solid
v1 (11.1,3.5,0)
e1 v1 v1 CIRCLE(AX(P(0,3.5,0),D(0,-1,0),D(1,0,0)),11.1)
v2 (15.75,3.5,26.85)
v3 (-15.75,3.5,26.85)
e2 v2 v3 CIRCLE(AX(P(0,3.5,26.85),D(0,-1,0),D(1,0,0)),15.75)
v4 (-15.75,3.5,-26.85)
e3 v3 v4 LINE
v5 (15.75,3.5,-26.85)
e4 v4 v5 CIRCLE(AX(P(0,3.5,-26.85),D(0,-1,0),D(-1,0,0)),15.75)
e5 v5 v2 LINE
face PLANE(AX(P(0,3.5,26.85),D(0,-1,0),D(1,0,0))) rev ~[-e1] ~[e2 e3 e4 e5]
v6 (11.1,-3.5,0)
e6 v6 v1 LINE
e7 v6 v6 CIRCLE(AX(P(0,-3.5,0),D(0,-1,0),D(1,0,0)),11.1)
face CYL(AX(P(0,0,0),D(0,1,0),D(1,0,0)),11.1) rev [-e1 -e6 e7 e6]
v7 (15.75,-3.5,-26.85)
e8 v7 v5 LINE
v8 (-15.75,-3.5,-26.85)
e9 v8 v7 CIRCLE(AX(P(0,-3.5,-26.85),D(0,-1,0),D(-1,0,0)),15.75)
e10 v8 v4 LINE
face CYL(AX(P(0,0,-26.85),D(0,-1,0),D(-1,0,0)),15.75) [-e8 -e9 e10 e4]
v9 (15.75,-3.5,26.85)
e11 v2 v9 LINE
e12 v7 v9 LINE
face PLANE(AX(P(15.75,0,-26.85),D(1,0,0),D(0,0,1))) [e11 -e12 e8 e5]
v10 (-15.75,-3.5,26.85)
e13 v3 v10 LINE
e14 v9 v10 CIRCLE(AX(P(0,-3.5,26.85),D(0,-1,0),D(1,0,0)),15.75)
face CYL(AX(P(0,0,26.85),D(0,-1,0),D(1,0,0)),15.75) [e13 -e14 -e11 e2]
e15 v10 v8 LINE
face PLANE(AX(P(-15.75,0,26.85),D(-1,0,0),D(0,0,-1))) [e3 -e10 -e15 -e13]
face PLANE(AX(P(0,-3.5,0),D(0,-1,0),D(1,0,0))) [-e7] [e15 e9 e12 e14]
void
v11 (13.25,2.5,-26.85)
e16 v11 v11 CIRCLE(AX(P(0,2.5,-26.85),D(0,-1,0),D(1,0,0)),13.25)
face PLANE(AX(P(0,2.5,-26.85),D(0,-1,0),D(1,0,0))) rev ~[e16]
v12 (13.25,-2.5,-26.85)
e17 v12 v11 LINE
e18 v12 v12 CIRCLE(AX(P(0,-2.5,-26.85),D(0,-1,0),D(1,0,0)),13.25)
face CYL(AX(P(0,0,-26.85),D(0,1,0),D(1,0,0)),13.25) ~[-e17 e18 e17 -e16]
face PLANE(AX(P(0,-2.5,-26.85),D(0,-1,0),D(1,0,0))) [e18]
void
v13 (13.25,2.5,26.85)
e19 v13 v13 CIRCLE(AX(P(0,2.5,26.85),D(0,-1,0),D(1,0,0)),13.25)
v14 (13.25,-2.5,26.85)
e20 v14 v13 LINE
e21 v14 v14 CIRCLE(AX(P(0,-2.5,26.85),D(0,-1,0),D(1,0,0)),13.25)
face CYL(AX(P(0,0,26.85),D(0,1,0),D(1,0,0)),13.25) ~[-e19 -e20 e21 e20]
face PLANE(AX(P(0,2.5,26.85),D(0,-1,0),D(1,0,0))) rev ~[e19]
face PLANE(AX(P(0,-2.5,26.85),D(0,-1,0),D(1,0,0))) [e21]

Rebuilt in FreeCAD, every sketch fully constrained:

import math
import FreeCAD as App
import Part
import Sketcher

V = App.Vector
Q = App.Units.Quantity

doc = App.newDocument("Part")
body = doc.addObject("PartDesign::Body", "Body")

# Sketch on XZ plane
sketch1 = body.newObject("Sketcher::SketchObject", "Sketch")
sketch1.AttachmentSupport = (doc.getObject("XZ_Plane"), [""])
sketch1.MapMode = "FlatFace"
sketch1.addGeometry(Part.LineSegment(V(15.75, -26.85, 0), V(15.75, 26.85, 0)), False)
sketch1.addGeometry(Part.ArcOfCircle(Part.Circle(V(0, 26.85, 0), V(0, 0, 1), 15.75), math.radians(0), math.radians(180)), False)
sketch1.addGeometry(Part.LineSegment(V(-15.75, 26.85, 0), V(-15.75, -26.85, 0)), False)
sketch1.addGeometry(Part.ArcOfCircle(Part.Circle(V(0, -26.85, 0), V(0, 0, 1), 15.75), math.radians(180), math.radians(360)), False)
sketch1.addGeometry(Part.Circle(V(0, -26.85, 0), V(0, 0, 1), 13.25), False)
sketch1.addGeometry(Part.Circle(V(0, 0, 0), V(0, 0, 1), 11.1), False)
sketch1.addGeometry(Part.Circle(V(0, 26.85, 0), V(0, 0, 1), 13.25), False)
sketch1.addConstraint(Sketcher.Constraint("Tangent", 0, 2, 1, 1))
sketch1.addConstraint(Sketcher.Constraint("Tangent", 1, 2, 2, 1))
sketch1.addConstraint(Sketcher.Constraint("Tangent", 2, 2, 3, 1))
sketch1.addConstraint(Sketcher.Constraint("Tangent", 3, 2, 0, 1))
sketch1.addConstraint(Sketcher.Constraint("Vertical", 0))
sketch1.addConstraint(Sketcher.Constraint("Vertical", 2))
sketch1.addConstraint(Sketcher.Constraint("Coincident", 5, 3, -1, 1))
sketch1.addConstraint(Sketcher.Constraint("Coincident", 4, 3, 3, 3))
sketch1.addConstraint(Sketcher.Constraint("Coincident", 6, 3, 1, 3))
sketch1.addConstraint(Sketcher.Constraint("Equal", 4, 6))
sketch1.addConstraint(Sketcher.Constraint("Symmetric", 1, 3, 3, 3, -1, 1))
sketch1.addConstraint(Sketcher.Constraint("Diameter", 4, Q("26.5 mm")))
sketch1.addConstraint(Sketcher.Constraint("Diameter", 5, Q("22.2 mm")))
sketch1.addConstraint(Sketcher.Constraint("Radius", 1, Q("15.75 mm")))
sketch1.addConstraint(Sketcher.Constraint("DistanceY", 0, 1, 0, 2, Q("53.7 mm")))
pad1 = body.newObject("PartDesign::Pad", "Pad")
pad1.Profile = sketch1
pad1.Length = 7
pad1.Midplane = True

# Sketch on XZ plane
sketch2 = body.newObject("Sketcher::SketchObject", "Sketch001")
sketch2.AttachmentSupport = (doc.getObject("XZ_Plane"), [""])
sketch2.MapMode = "FlatFace"
sketch2.AttachmentOffset = App.Placement(V(0, 0, 2.5), App.Rotation())
sketch2.addGeometry(Part.Circle(V(0, 26.85, 0), V(0, 0, 1), 13.25), False)
sketch2.addGeometry(Part.Circle(V(0, -26.85, 0), V(0, 0, 1), 13.25), False)
sketch2.addConstraint(Sketcher.Constraint("Equal", 0, 1))
sketch2.addConstraint(Sketcher.Constraint("Symmetric", 0, 3, 1, 3, -1, 1))
sketch2.addConstraint(Sketcher.Constraint("PointOnObject", 0, 3, -2))
sketch2.addConstraint(Sketcher.Constraint("Diameter", 0, Q("26.5 mm")))
sketch2.addConstraint(Sketcher.Constraint("DistanceY", 1, 3, 0, 3, Q("53.7 mm")))
pad2 = body.newObject("PartDesign::Pad", "Pad001")
pad2.Profile = sketch2
pad2.Length = 1

# Sketch on XZ plane
sketch3 = body.newObject("Sketcher::SketchObject", "Sketch002")
sketch3.AttachmentSupport = (doc.getObject("XZ_Plane"), [""])
sketch3.MapMode = "FlatFace"
sketch3.AttachmentOffset = App.Placement(V(0, 0, -2.5), App.Rotation())
sketch3.addGeometry(Part.Circle(V(0, 26.85, 0), V(0, 0, 1), 13.25), False)
sketch3.addGeometry(Part.Circle(V(0, -26.85, 0), V(0, 0, 1), 13.25), False)
sketch3.addConstraint(Sketcher.Constraint("Equal", 0, 1))
sketch3.addConstraint(Sketcher.Constraint("Symmetric", 0, 3, 1, 3, -1, 1))
sketch3.addConstraint(Sketcher.Constraint("PointOnObject", 0, 3, -2))
sketch3.addConstraint(Sketcher.Constraint("Diameter", 0, Q("26.5 mm")))
sketch3.addConstraint(Sketcher.Constraint("DistanceY", 1, 3, 0, 3, Q("53.7 mm")))
pad3 = body.newObject("PartDesign::Pad", "Pad002")
pad3.Profile = sketch3
pad3.Length = 1
pad3.Reversed = True

doc.recompute()
